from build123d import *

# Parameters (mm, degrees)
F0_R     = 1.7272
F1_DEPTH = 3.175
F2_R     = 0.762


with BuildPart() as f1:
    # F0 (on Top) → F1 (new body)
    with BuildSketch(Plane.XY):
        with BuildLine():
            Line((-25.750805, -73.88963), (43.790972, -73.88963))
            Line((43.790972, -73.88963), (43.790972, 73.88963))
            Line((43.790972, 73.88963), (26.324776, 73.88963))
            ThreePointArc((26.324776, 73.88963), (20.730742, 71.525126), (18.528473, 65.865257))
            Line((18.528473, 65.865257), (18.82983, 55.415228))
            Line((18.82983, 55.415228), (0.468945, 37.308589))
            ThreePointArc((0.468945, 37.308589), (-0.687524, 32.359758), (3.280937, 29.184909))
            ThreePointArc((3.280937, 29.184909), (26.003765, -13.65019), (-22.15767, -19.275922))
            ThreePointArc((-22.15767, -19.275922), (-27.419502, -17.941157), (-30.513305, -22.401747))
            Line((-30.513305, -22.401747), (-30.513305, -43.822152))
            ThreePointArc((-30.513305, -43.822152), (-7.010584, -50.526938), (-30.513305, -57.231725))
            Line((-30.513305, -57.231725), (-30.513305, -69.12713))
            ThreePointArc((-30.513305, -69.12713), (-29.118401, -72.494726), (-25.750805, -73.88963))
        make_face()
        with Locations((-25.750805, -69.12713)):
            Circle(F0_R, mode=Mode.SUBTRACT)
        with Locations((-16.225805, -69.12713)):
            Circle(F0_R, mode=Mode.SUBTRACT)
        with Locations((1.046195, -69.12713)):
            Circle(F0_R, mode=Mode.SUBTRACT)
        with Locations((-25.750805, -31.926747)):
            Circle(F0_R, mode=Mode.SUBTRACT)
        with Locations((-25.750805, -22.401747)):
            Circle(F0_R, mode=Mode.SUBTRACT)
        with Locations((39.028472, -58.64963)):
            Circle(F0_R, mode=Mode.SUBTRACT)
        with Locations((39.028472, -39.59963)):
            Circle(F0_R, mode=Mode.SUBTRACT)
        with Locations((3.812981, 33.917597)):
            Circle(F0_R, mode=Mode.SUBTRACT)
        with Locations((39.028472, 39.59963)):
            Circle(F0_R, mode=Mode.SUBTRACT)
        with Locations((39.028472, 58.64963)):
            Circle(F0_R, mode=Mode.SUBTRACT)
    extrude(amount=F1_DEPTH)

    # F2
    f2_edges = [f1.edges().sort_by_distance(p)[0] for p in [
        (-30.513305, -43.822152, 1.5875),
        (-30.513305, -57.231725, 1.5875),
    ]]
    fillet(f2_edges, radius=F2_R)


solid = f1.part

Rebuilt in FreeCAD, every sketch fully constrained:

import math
import FreeCAD as App
import Part
import Sketcher

V = App.Vector
Q = App.Units.Quantity


def edges_at(feature, points):
    """Names of the edges that pass closest to the given points."""
    edges = feature.Shape.Edges
    near = lambda p: min(range(len(edges)), key=lambda i: edges[i].distToShape(Part.Vertex(*p))[0])
    return sorted({f"Edge{near(p) + 1}" for p in points})

doc = App.newDocument("Part")
params = doc.addObject("Spreadsheet::Sheet", "Params")
for row, (alias, value) in enumerate([
    ("sketch1_diameter", "0.136 in"),
    ("sketch1_diameter2", "0.136 in"),
    ("sketch1_diameter3", "0.136 in"),
    ("sketch1_diameter4", "0.136 in"),
    ("sketch1_diameter5", "0.136 in"),
    ("pad1_length", "0.125 in"),
    ("fillet_radius", "0.03 in"),
], start=1):
    params.set(f"A{row}", alias)
    params.set(f"B{row}", "=" + value)
    params.setAlias(f"B{row}", alias)

body = doc.addObject("PartDesign::Body", "Body")

sketch1 = body.newObject("Sketcher::SketchObject", "Sketch")
sketch1.AttachmentSupport = (doc.getObject("XY_Plane"), [""])
sketch1.MapMode = "FlatFace"
sketch1.addGeometry([
    Part.LineSegment(V(-25.750805, -73.88963, 0), V(43.790972, -73.88963, 0)),
    Part.LineSegment(V(43.790972, -73.88963, 0), V(43.790972, 73.88963, 0)),
    Part.LineSegment(V(43.790972, 73.88963, 0), V(26.324776, 73.88963, 0)),
    Part.ArcOfCircle(Part.Circle(V(26.324778, 66.090084, 0), V(0, 0, 1), 7.799546), math.radians(90.000012), math.radians(181.651819)),
    Part.LineSegment(V(18.528473, 65.865257, 0), V(18.82983, 55.415228, 0)),
    Part.LineSegment(V(18.82983, 55.415228, 0), V(0.468945, 37.308589, 0)),
    Part.ArcOfCircle(Part.Circle(V(3.812981, 33.917597, 0), V(0, 0, 1), 4.7625), math.radians(134.600539), math.radians(263.585801)),
    Part.ArcOfCircle(Part.Circle(V(0, 0, 0), V(0, 0, 1), 29.36875), math.radians(-138.978572), math.radians(83.585798)),
    Part.ArcOfCircle(Part.Circle(V(-25.750806, -22.401746, 0), V(0, 0, 1), 4.762499), math.radians(41.021414), math.radians(180.000015)),
    Part.LineSegment(V(-30.513305, -22.401747, 0), V(-30.513305, -43.822152, 0)),
    Part.ArcOfCircle(Part.Circle(V(-19.718305, -50.526938, 0), V(0, 0, 1), 12.707721), math.radians(-148.155538), math.radians(148.155538)),
    Part.LineSegment(V(-30.513305, -57.231725, 0), V(-30.513305, -69.12713, 0)),
    Part.ArcOfCircle(Part.Circle(V(-25.750805, -69.12713, 0), V(0, 0, 1), 4.7625), math.radians(-179.999998), math.radians(-90.000002)),
    Part.Circle(V(-25.750805, -69.12713, 0), V(0, 0, 1), 1.7272),
    Part.Circle(V(-16.225805, -69.12713, 0), V(0, 0, 1), 1.7272),
    Part.Circle(V(1.046195, -69.12713, 0), V(0, 0, 1), 1.7272),
    Part.Circle(V(-25.750805, -31.926747, 0), V(0, 0, 1), 1.7272),
    Part.Circle(V(-25.750805, -22.401747, 0), V(0, 0, 1), 1.7272),
    Part.Circle(V(39.028472, -58.64963, 0), V(0, 0, 1), 1.7272),
    Part.Circle(V(39.028472, -39.59963, 0), V(0, 0, 1), 1.7272),
    Part.Circle(V(3.812981, 33.917597, 0), V(0, 0, 1), 1.7272),
    Part.Circle(V(39.028472, 39.59963, 0), V(0, 0, 1), 1.7272),
    Part.Circle(V(39.028472, 58.64963, 0), V(0, 0, 1), 1.7272),
], False)
sketch1.addConstraint([
    Sketcher.Constraint("Coincident", 0, 2, 1, 1),
    Sketcher.Constraint("Coincident", 1, 2, 2, 1),
    Sketcher.Constraint("Coincident", 2, 2, 3, 1),
    Sketcher.Constraint("Coincident", 3, 2, 4, 1),
    Sketcher.Constraint("Coincident", 4, 2, 5, 1),
    Sketcher.Constraint("Coincident", 5, 2, 6, 1),
    Sketcher.Constraint("Coincident", 6, 2, 7, 2),
    Sketcher.Constraint("Coincident", 7, 1, 8, 1),
    Sketcher.Constraint("Coincident", 8, 2, 9, 1),
    Sketcher.Constraint("Coincident", 9, 2, 10, 2),
    Sketcher.Constraint("Coincident", 10, 1, 11, 1),
    Sketcher.Constraint("Coincident", 11, 2, 12, 1),
    Sketcher.Constraint("Coincident", 12, 2, 0, 1),
    Sketcher.Constraint("Horizontal", 0),
    Sketcher.Constraint("Vertical", 1),
    Sketcher.Constraint("Horizontal", 2),
    Sketcher.Constraint("Vertical", 9),
    Sketcher.Constraint("Vertical", 11),
    Sketcher.Constraint("Coincident", 7, 3, -1, 1),
    Sketcher.Constraint("Coincident", 13, 3, 12, 3),
    Sketcher.Constraint("Coincident", 17, 3, 8, 3),
    Sketcher.Constraint("Coincident", 20, 3, 6, 3),
    Sketcher.Constraint("Diameter", 13, Q("0.136 in")),
    Sketcher.Constraint("Diameter", 14, Q("0.136 in")),
    Sketcher.Constraint("Diameter", 15, Q("0.136 in")),
    Sketcher.Constraint("Diameter", 16, Q("0.136 in")),
    Sketcher.Constraint("Diameter", 17, Q("0.136 in")),
    Sketcher.Constraint("Diameter", 18, Q("0.136 in")),
    Sketcher.Constraint("Diameter", 19, Q("0.136 in")),
    Sketcher.Constraint("Diameter", 20, Q("0.136 in")),
    Sketcher.Constraint("Diameter", 21, Q("0.136 in")),
    Sketcher.Constraint("Diameter", 22, Q("0.136 in")),
    Sketcher.Constraint("Radius", 6, Q("0.1875 in")),
    Sketcher.Constraint("Radius", 7, Q("1.15625 in")),
    Sketcher.Constraint("Radius", 8, Q("0.1875 in")),
    Sketcher.Constraint("Radius", 12, Q("0.1875 in")),
    Sketcher.Constraint("DistanceY", 0, 2, 18, 3, Q("0.6 in")),
    Sketcher.Constraint("DistanceY", 22, 3, 1, 2, Q("0.6 in")),
    Sketcher.Constraint("DistanceX", 14, 3, 15, 3, Q("0.68 in")),
    Sketcher.Constraint("DistanceY", 18, 3, 19, 3, Q("0.75 in")),
    Sketcher.Constraint("DistanceY", 21, 3, 22, 3, Q("0.75 in")),
    Sketcher.Constraint("Radius", 10, 12.707721),
    Sketcher.Constraint("DistanceX", 12, 3, 14, 3, Q("0.375 in")),
    Sketcher.Constraint("DistanceX", 8, 3, 14, 3, Q("0.375 in")),
    Sketcher.Constraint("DistanceY", 16, 3, 8, 3, Q("0.3750001 in")),
    Sketcher.Constraint("DistanceX", 16, 3, 14, 3, Q("0.375 in")),
    Sketcher.Constraint("DistanceX", 18, 3, 0, 2, Q("0.1875 in")),
    Sketcher.Constraint("DistanceX", 19, 3, 0, 2, Q("0.1875 in")),
    Sketcher.Constraint("DistanceY", 0, 2, 15, 3, Q("0.1875 in")),
    Sketcher.Constraint("DistanceY", 0, 2, 14, 3, Q("0.1875 in")),
    Sketcher.Constraint("DistanceX", 22, 3, 1, 2, Q("0.1875 in")),
    Sketcher.Constraint("DistanceX", 21, 3, 1, 2, Q("0.1875 in")),
    Sketcher.Constraint("DistanceY", 16, 3, 8, 2, Q("0.375 in")),
    Sketcher.Constraint("DistanceX", 8, 2, 10, 3, Q("0.425 in")),
    Sketcher.Constraint("DistanceX", 11, 2, 12, 2, Q("0.1875 in")),
    Sketcher.Constraint("DistanceY", 12, 2, 11, 2, Q("0.1875 in")),
    Sketcher.Constraint("Radius", 3, 7.799546),
    Sketcher.Constraint("DistanceY", 1, 1, 1, 2, 147.77926),
    Sketcher.Constraint("DistanceX", 3, 2, 22, 3, 20.499999),
    Sketcher.Constraint("DistanceY", 4, 2, 2, 2, 18.474402),
    Sketcher.Constraint("Distance", 5, 25.78706),
    Sketcher.Constraint("DistanceX", 0, 1, 0, 2, 69.541777),
    Sketcher.Constraint("DistanceX", 2, 2, 2, 1, 17.466196),
    Sketcher.Constraint("DistanceY", 9, 2, 9, 1, 21.420405),
    Sketcher.Constraint("DistanceY", 11, 2, 11, 1, 11.895405),
    Sketcher.Constraint("DistanceX", -1, 1, 6, 3, 3.812981),
    Sketcher.Constraint("DistanceY", 10, 3, -1, 1, 50.526938),
    Sketcher.Constraint("DistanceX", -1, 1, 4, 2, 18.82983),
    Sketcher.Constraint("DistanceY", -1, 1, 6, 2, 29.184909),
    Sketcher.Constraint("DistanceX", 7, 1, -1, 1, 22.15767),
    Sketcher.Constraint("DistanceY", 4, 2, 3, 2, 10.450029),
])
sketch1.setExpression("Constraints[22]", "Params.sketch1_diameter")
sketch1.setExpression("Constraints[23]", "Params.sketch1_diameter2")
sketch1.setExpression("Constraints[24]", "Params.sketch1_diameter3")
sketch1.setExpression("Constraints[25]", "Params.sketch1_diameter4")
sketch1.setExpression("Constraints[26]", "Params.sketch1_diameter5")
pad1 = body.newObject("PartDesign::Pad", "Pad")
pad1.Profile = sketch1
pad1.setExpression("Length", "Params.pad1_length")
doc.recompute()

fillet = body.newObject("PartDesign::Fillet", "Fillet")
fillet.Base = (pad1, edges_at(pad1, [(-30.513, -43.822, 1.587), (-30.513, -57.232, 1.587)]))
fillet.setExpression("Radius", "Params.fillet_radius")

doc.recompute()
